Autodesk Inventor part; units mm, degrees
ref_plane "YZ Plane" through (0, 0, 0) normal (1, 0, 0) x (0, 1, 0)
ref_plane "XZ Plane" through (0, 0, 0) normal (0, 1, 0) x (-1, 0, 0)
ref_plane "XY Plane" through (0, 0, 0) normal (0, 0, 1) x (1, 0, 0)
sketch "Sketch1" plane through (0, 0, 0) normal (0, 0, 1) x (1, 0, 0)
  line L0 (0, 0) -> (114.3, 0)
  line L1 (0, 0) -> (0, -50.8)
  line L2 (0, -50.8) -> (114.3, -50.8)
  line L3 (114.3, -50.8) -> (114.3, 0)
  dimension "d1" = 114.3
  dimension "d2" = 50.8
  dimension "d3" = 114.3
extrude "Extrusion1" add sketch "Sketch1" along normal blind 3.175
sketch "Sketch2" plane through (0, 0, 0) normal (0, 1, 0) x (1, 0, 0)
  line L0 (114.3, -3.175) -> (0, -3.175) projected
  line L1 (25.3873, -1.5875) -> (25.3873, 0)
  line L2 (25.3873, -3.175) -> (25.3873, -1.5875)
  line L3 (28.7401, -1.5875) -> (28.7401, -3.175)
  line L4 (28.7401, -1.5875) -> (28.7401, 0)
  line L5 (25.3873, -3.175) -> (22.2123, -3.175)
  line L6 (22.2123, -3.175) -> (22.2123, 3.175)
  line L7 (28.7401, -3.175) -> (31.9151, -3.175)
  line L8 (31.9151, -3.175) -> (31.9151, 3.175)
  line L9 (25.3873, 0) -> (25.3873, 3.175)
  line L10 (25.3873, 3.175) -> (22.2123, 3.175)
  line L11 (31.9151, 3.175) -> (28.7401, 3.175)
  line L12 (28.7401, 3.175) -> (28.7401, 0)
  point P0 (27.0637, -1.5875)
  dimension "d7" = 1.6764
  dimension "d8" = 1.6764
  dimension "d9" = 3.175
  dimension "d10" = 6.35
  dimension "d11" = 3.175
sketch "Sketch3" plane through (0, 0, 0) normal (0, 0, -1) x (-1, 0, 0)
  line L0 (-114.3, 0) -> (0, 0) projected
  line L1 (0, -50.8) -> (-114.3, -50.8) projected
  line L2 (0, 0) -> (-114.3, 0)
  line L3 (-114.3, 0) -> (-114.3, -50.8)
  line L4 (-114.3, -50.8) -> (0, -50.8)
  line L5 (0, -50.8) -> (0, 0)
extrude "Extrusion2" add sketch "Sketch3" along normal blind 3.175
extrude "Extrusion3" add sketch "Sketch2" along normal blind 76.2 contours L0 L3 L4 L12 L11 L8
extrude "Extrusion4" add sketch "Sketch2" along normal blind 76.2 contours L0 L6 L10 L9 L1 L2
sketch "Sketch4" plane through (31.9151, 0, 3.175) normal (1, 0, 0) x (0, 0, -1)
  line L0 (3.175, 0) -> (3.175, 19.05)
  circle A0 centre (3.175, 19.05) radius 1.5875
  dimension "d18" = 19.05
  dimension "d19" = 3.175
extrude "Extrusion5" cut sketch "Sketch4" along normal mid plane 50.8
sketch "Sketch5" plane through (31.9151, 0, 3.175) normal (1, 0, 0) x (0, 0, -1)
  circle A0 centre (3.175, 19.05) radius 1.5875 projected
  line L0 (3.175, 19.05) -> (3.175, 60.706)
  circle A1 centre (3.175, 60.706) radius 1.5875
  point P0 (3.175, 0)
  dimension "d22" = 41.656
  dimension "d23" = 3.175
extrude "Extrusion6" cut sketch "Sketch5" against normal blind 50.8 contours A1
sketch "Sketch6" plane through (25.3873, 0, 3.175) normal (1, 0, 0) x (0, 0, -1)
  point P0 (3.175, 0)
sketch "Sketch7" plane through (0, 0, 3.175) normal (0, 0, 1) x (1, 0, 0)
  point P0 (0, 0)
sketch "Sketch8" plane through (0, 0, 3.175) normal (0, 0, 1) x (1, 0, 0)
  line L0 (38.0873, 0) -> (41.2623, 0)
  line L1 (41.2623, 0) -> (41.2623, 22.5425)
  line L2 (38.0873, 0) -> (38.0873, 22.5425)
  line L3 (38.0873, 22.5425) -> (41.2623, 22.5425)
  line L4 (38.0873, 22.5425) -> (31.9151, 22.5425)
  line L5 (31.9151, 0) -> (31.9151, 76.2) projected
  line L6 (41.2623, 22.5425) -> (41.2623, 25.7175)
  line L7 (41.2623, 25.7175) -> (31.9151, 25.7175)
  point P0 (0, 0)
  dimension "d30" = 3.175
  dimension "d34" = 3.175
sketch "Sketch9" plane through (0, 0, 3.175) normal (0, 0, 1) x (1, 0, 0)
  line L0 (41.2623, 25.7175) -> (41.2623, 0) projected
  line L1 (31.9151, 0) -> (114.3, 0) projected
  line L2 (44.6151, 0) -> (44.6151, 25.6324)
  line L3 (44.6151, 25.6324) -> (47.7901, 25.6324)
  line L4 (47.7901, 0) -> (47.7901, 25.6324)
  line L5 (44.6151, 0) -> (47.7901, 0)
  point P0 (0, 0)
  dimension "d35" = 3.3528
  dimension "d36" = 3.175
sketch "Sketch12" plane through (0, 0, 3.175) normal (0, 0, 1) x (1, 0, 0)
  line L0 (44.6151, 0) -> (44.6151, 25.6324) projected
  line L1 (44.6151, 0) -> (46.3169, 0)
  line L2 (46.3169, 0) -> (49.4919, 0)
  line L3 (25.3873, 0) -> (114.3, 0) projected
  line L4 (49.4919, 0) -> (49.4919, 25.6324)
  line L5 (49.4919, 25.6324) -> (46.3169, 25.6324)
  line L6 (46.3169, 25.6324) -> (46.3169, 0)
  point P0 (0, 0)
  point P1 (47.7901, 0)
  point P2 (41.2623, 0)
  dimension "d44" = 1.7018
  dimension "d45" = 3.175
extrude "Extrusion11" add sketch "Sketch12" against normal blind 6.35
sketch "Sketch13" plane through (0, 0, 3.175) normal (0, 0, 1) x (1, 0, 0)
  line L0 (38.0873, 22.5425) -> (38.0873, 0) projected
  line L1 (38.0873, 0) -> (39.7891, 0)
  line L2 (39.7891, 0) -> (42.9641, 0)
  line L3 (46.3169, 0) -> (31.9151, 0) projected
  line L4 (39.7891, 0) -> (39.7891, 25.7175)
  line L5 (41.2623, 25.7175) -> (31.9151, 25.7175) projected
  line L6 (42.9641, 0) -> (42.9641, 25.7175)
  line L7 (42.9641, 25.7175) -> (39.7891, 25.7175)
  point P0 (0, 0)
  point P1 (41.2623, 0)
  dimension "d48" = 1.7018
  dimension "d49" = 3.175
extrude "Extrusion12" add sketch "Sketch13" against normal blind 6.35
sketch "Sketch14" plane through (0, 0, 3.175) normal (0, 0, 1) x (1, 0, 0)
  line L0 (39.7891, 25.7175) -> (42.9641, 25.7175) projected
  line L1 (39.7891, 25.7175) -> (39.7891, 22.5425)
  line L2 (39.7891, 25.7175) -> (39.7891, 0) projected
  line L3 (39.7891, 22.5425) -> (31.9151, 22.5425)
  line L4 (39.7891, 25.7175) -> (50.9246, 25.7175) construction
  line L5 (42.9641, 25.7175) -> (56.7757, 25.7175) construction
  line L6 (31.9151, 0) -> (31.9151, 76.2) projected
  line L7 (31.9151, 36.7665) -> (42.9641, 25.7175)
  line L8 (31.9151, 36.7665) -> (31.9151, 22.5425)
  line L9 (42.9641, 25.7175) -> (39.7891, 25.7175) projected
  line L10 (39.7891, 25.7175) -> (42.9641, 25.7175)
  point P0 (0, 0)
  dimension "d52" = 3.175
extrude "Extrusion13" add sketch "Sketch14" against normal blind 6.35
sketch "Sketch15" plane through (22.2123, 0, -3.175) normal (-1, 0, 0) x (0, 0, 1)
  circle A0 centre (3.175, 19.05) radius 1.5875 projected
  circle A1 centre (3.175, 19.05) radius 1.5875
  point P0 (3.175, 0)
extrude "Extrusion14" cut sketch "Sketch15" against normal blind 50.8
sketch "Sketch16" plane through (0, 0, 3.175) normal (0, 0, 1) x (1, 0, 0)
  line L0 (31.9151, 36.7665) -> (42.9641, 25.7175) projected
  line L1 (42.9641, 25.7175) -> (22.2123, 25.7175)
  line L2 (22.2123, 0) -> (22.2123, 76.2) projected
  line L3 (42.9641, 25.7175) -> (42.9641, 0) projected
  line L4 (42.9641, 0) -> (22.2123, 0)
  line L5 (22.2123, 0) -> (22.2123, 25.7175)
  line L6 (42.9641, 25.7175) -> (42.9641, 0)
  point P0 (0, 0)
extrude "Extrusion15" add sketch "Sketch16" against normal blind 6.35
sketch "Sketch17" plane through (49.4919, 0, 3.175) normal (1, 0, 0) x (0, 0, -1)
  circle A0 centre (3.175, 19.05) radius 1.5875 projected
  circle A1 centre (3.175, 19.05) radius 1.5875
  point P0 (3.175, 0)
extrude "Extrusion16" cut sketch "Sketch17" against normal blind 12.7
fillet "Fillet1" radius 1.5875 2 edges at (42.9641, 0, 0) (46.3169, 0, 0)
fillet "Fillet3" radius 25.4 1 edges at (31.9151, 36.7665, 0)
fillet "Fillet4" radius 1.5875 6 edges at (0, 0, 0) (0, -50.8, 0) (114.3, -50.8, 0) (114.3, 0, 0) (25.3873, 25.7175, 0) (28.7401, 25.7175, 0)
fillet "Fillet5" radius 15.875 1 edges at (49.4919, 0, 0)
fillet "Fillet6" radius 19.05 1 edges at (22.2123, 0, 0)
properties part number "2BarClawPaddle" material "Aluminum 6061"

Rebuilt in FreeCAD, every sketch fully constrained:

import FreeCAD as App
import Part
import Sketcher

V = App.Vector
Q = App.Units.Quantity


def edges_at(feature, points):
    """Names of the edges that pass closest to the given points."""
    edges = feature.Shape.Edges
    near = lambda p: min(range(len(edges)), key=lambda i: edges[i].distToShape(Part.Vertex(*p))[0])
    return sorted({f"Edge{near(p) + 1}" for p in points})

doc = App.newDocument("Part")
body = doc.addObject("PartDesign::Body", "Body")

sketch1 = body.newObject("Sketcher::SketchObject", "Sketch")
sketch1.AttachmentSupport = (doc.getObject("XY_Plane"), [""])
sketch1.MapMode = "FlatFace"
sketch1.addGeometry(Part.LineSegment(V(114.3, 0, 0), V(0, 0, 0)), False)
sketch1.addGeometry(Part.LineSegment(V(0, 0, 0), V(0, -50.8, 0)), False)
sketch1.addGeometry(Part.LineSegment(V(0, -50.8, 0), V(114.3, -50.8, 0)), False)
sketch1.addGeometry(Part.LineSegment(V(114.3, -50.8, 0), V(114.3, 0, 0)), False)
sketch1.addConstraint(Sketcher.Constraint("Coincident", 0, 2, 1, 1))
sketch1.addConstraint(Sketcher.Constraint("Coincident", 1, 2, 2, 1))
sketch1.addConstraint(Sketcher.Constraint("Coincident", 2, 2, 3, 1))
sketch1.addConstraint(Sketcher.Constraint("Coincident", 3, 2, 0, 1))
sketch1.addConstraint(Sketcher.Constraint("Horizontal", 0))
sketch1.addConstraint(Sketcher.Constraint("Vertical", 1))
sketch1.addConstraint(Sketcher.Constraint("Horizontal", 2))
sketch1.addConstraint(Sketcher.Constraint("Vertical", 3))
sketch1.addConstraint(Sketcher.Constraint("Coincident", 0, 2, -1, 1))
sketch1.addConstraint(Sketcher.Constraint("DistanceY", 1, 2, 1, 1, Q("2 in")))
sketch1.addConstraint(Sketcher.Constraint("DistanceX", 0, 2, 0, 1, Q("4.5 in")))
pad1 = body.newObject("PartDesign::Pad", "Pad")
pad1.Profile = sketch1
pad1.Length = Q("0.125 in")

sketch2 = body.newObject("Sketcher::SketchObject", "Sketch001")
sketch2.AttachmentSupport = (doc.getObject("XY_Plane"), [""])
sketch2.MapMode = "FlatFace"
sketch2.addGeometry(Part.LineSegment(V(0, 0, 0), V(114.3, 0, 0)), False)
sketch2.addGeometry(Part.LineSegment(V(114.3, 0, 0), V(114.3, -50.8, 0)), False)
sketch2.addGeometry(Part.LineSegment(V(114.3, -50.8, 0), V(0, -50.8, 0)), False)
sketch2.addGeometry(Part.LineSegment(V(0, -50.8, 0), V(0, 0, 0)), False)
sketch2.addConstraint(Sketcher.Constraint("Coincident", 0, 2, 1, 1))
sketch2.addConstraint(Sketcher.Constraint("Coincident", 1, 2, 2, 1))
sketch2.addConstraint(Sketcher.Constraint("Coincident", 2, 2, 3, 1))
sketch2.addConstraint(Sketcher.Constraint("Coincident", 3, 2, 0, 1))
sketch2.addConstraint(Sketcher.Constraint("Horizontal", 0))
sketch2.addConstraint(Sketcher.Constraint("Vertical", 1))
sketch2.addConstraint(Sketcher.Constraint("Horizontal", 2))
sketch2.addConstraint(Sketcher.Constraint("Vertical", 3))
sketch2.addConstraint(Sketcher.Constraint("Coincident", 3, 2, -1, 1))
sketch2.addConstraint(Sketcher.Constraint("DistanceY", 1, 2, 1, 1, Q("2 in")))
sketch2.addConstraint(Sketcher.Constraint("DistanceX", 0, 1, 0, 2, Q("4.5 in")))
pad2 = body.newObject("PartDesign::Pad", "Pad001")
pad2.Profile = sketch2
pad2.Length = Q("0.125 in")
pad2.Reversed = True

sketch3 = body.newObject("Sketcher::SketchObject", "Sketch002")
sketch3.AttachmentSupport = (doc.getObject("XZ_Plane"), [""])
sketch3.MapMode = "FlatFace"
sketch3.addGeometry(Part.LineSegment(V(28.7401, 3.175, 0), V(31.9151, 3.175, 0)), False)
sketch3.addGeometry(Part.LineSegment(V(31.9151, 3.175, 0), V(31.9151, -3.175, 0)), False)
sketch3.addGeometry(Part.LineSegment(V(31.9151, -3.175, 0), V(28.7401, -3.175, 0)), False)
sketch3.addGeometry(Part.LineSegment(V(28.7401, -3.175, 0), V(28.7401, 3.175, 0)), False)
sketch3.addConstraint(Sketcher.Constraint("Coincident", 0, 2, 1, 1))
sketch3.addConstraint(Sketcher.Constraint("Coincident", 1, 2, 2, 1))
sketch3.addConstraint(Sketcher.Constraint("Coincident", 2, 2, 3, 1))
sketch3.addConstraint(Sketcher.Constraint("Coincident", 3, 2, 0, 1))
sketch3.addConstraint(Sketcher.Constraint("Horizontal", 0))
sketch3.addConstraint(Sketcher.Constraint("Vertical", 1))
sketch3.addConstraint(Sketcher.Constraint("Horizontal", 2))
sketch3.addConstraint(Sketcher.Constraint("Vertical", 3))
sketch3.addConstraint(Sketcher.Constraint("DistanceY", 1, 2, 1, 1, Q("0.25 in")))
sketch3.addConstraint(Sketcher.Constraint("DistanceX", 0, 1, 0, 2, Q("0.125 in")))
sketch3.addConstraint(Sketcher.Constraint("DistanceY", -1, 1, 0, 2, Q("0.125 in")))
sketch3.addConstraint(Sketcher.Constraint("DistanceX", -1, 1, 0, 2, Q("1.2565 in")))
pad3 = body.newObject("PartDesign::Pad", "Pad002")
pad3.Profile = sketch3
pad3.Length = Q("3 in")
pad3.Reversed = True

sketch4 = body.newObject("Sketcher::SketchObject", "Sketch003")
sketch4.AttachmentSupport = (doc.getObject("XZ_Plane"), [""])
sketch4.MapMode = "FlatFace"
sketch4.addGeometry(Part.LineSegment(V(22.2123, 3.175, 0), V(25.3873, 3.175, 0)), False)
sketch4.addGeometry(Part.LineSegment(V(25.3873, 3.175, 0), V(25.3873, -3.175, 0)), False)
sketch4.addGeometry(Part.LineSegment(V(25.3873, -3.175, 0), V(22.2123, -3.175, 0)), False)
sketch4.addGeometry(Part.LineSegment(V(22.2123, -3.175, 0), V(22.2123, 3.175, 0)), False)
sketch4.addConstraint(Sketcher.Constraint("Coincident", 0, 2, 1, 1))
sketch4.addConstraint(Sketcher.Constraint("Coincident", 1, 2, 2, 1))
sketch4.addConstraint(Sketcher.Constraint("Coincident", 2, 2, 3, 1))
sketch4.addConstraint(Sketcher.Constraint("Coincident", 3, 2, 0, 1))
sketch4.addConstraint(Sketcher.Constraint("Horizontal", 0))
sketch4.addConstraint(Sketcher.Constraint("Vertical", 1))
sketch4.addConstraint(Sketcher.Constraint("Horizontal", 2))
sketch4.addConstraint(Sketcher.Constraint("Vertical", 3))
sketch4.addConstraint(Sketcher.Constraint("DistanceY", 1, 2, 1, 1, Q("0.25 in")))
sketch4.addConstraint(Sketcher.Constraint("DistanceX", 0, 1, 0, 2, Q("0.125 in")))
sketch4.addConstraint(Sketcher.Constraint("DistanceY", -1, 1, 0, 2, Q("0.125 in")))
sketch4.addConstraint(Sketcher.Constraint("DistanceX", -1, 1, 0, 2, Q("0.9995 in")))
pad4 = body.newObject("PartDesign::Pad", "Pad003")
pad4.Profile = sketch4
pad4.Length = Q("3 in")
pad4.Reversed = True

sketch5 = body.newObject("Sketcher::SketchObject", "Sketch004")
sketch5.AttachmentSupport = (doc.getObject("YZ_Plane"), [""])
sketch5.MapMode = "FlatFace"
sketch5.AttachmentOffset = App.Placement(V(0, 0, 1.2565 * 25.4), App.Rotation())
sketch5.addGeometry(Part.Circle(V(19.05, 0, 0), V(0, 0, 1), 1.5875), False)
sketch5.addConstraint(Sketcher.Constraint("PointOnObject", 0, 3, -1))
sketch5.addConstraint(Sketcher.Constraint("Diameter", 0, Q("0.125 in")))
sketch5.addConstraint(Sketcher.Constraint("DistanceX", -1, 1, 0, 3, Q("0.75 in")))
pocket1 = body.newObject("PartDesign::Pocket", "Pocket")
pocket1.Profile = sketch5
pocket1.Length = Q("2 in")
pocket1.Midplane = True

sketch6 = body.newObject("Sketcher::SketchObject", "Sketch005")
sketch6.AttachmentSupport = (doc.getObject("YZ_Plane"), [""])
sketch6.MapMode = "FlatFace"
sketch6.AttachmentOffset = App.Placement(V(0, 0, 1.2565 * 25.4), App.Rotation())
sketch6.addGeometry(Part.Circle(V(60.706, 0, 0), V(0, 0, 1), 1.5875), False)
sketch6.addConstraint(Sketcher.Constraint("PointOnObject", 0, 3, -1))
sketch6.addConstraint(Sketcher.Constraint("Diameter", 0, Q("0.125 in")))
sketch6.addConstraint(Sketcher.Constraint("DistanceX", -1, 1, 0, 3, Q("2.39 in")))
pocket2 = body.newObject("PartDesign::Pocket", "Pocket001")
pocket2.Profile = sketch6
pocket2.Length = Q("2 in")

sketch7 = body.newObject("Sketcher::SketchObject", "Sketch006")
sketch7.AttachmentSupport = (doc.getObject("XY_Plane"), [""])
sketch7.MapMode = "FlatFace"
sketch7.AttachmentOffset = App.Placement(V(0, 0, 0.125 * 25.4), App.Rotation())
sketch7.addGeometry(Part.LineSegment(V(46.3169, 25.6324, 0), V(46.3169, 0, 0)), False)
sketch7.addGeometry(Part.LineSegment(V(46.3169, 0, 0), V(49.4919, 0, 0)), False)
sketch7.addGeometry(Part.LineSegment(V(49.4919, 0, 0), V(49.4919, 25.6324, 0)), False)
sketch7.addGeometry(Part.LineSegment(V(49.4919, 25.6324, 0), V(46.3169, 25.6324, 0)), False)
sketch7.addConstraint(Sketcher.Constraint("Coincident", 0, 2, 1, 1))
sketch7.addConstraint(Sketcher.Constraint("Coincident", 1, 2, 2, 1))
sketch7.addConstraint(Sketcher.Constraint("Coincident", 2, 2, 3, 1))
sketch7.addConstraint(Sketcher.Constraint("Coincident", 3, 2, 0, 1))
sketch7.addConstraint(Sketcher.Constraint("Vertical", 0))
sketch7.addConstraint(Sketcher.Constraint("Horizontal", 1))
sketch7.addConstraint(Sketcher.Constraint("Vertical", 2))
sketch7.addConstraint(Sketcher.Constraint("Horizontal", 3))
sketch7.addConstraint(Sketcher.Constraint("PointOnObject", 0, 2, -1))
sketch7.addConstraint(Sketcher.Constraint("DistanceX", 1, 1, 1, 2, Q("0.125 in")))
sketch7.addConstraint(Sketcher.Constraint("DistanceY", 0, 2, 0, 1, 25.6324))
sketch7.addConstraint(Sketcher.Constraint("DistanceX", -1, 1, 0, 2, Q("1.8235 in")))
pad5 = body.newObject("PartDesign::Pad", "Pad004")
pad5.Profile = sketch7
pad5.Length = Q("0.25 in")
pad5.Reversed = True

sketch8 = body.newObject("Sketcher::SketchObject", "Sketch007")
sketch8.AttachmentSupport = (doc.getObject("XY_Plane"), [""])
sketch8.MapMode = "FlatFace"
sketch8.AttachmentOffset = App.Placement(V(0, 0, 0.125 * 25.4), App.Rotation())
sketch8.addGeometry(Part.LineSegment(V(39.7891, 25.7175, 0), V(39.7891, 0, 0)), False)
sketch8.addGeometry(Part.LineSegment(V(39.7891, 0, 0), V(42.9641, 0, 0)), False)
sketch8.addGeometry(Part.LineSegment(V(42.9641, 0, 0), V(42.9641, 25.7175, 0)), False)
sketch8.addGeometry(Part.LineSegment(V(42.9641, 25.7175, 0), V(39.7891, 25.7175, 0)), False)
sketch8.addConstraint(Sketcher.Constraint("Coincident", 0, 2, 1, 1))
sketch8.addConstraint(Sketcher.Constraint("Coincident", 1, 2, 2, 1))
sketch8.addConstraint(Sketcher.Constraint("Coincident", 2, 2, 3, 1))
sketch8.addConstraint(Sketcher.Constraint("Coincident", 3, 2, 0, 1))
sketch8.addConstraint(Sketcher.Constraint("Vertical", 0))
sketch8.addConstraint(Sketcher.Constraint("Horizontal", 1))
sketch8.addConstraint(Sketcher.Constraint("Vertical", 2))
sketch8.addConstraint(Sketcher.Constraint("Horizontal", 3))
sketch8.addConstraint(Sketcher.Constraint("PointOnObject", 0, 2, -1))
sketch8.addConstraint(Sketcher.Constraint("DistanceX", 1, 1, 1, 2, Q("0.125 in")))
sketch8.addConstraint(Sketcher.Constraint("DistanceY", 0, 2, 0, 1, Q("1.0125 in")))
sketch8.addConstraint(Sketcher.Constraint("DistanceX", -1, 1, 0, 2, Q("1.5665 in")))
pad6 = body.newObject("PartDesign::Pad", "Pad005")
pad6.Profile = sketch8
pad6.Length = Q("0.25 in")
pad6.Reversed = True

sketch9 = body.newObject("Sketcher::SketchObject", "Sketch008")
sketch9.AttachmentSupport = (doc.getObject("XY_Plane"), [""])
sketch9.MapMode = "FlatFace"
sketch9.AttachmentOffset = App.Placement(V(0, 0, 0.125 * 25.4), App.Rotation())
sketch9.addGeometry(Part.LineSegment(V(39.7891, 22.5425, 0), V(39.7891, 25.7175, 0)), False)
sketch9.addGeometry(Part.LineSegment(V(39.7891, 25.7175, 0), V(42.9641, 25.7175, 0)), False)
sketch9.addGeometry(Part.LineSegment(V(42.9641, 25.7175, 0), V(31.9151, 36.7665, 0)), False)
sketch9.addGeometry(Part.LineSegment(V(31.9151, 36.7665, 0), V(31.9151, 22.5425, 0)), False)
sketch9.addGeometry(Part.LineSegment(V(31.9151, 22.5425, 0), V(39.7891, 22.5425, 0)), False)
sketch9.addConstraint(Sketcher.Constraint("Coincident", 0, 2, 1, 1))
sketch9.addConstraint(Sketcher.Constraint("Coincident", 1, 2, 2, 1))
sketch9.addConstraint(Sketcher.Constraint("Coincident", 2, 2, 3, 1))
sketch9.addConstraint(Sketcher.Constraint("Coincident", 3, 2, 4, 1))
sketch9.addConstraint(Sketcher.Constraint("Coincident", 4, 2, 0, 1))
sketch9.addConstraint(Sketcher.Constraint("Vertical", 0))
sketch9.addConstraint(Sketcher.Constraint("Horizontal", 1))
sketch9.addConstraint(Sketcher.Constraint("Vertical", 3))
sketch9.addConstraint(Sketcher.Constraint("Horizontal", 4))
sketch9.addConstraint(Sketcher.Constraint("Equal", 1, 0))
sketch9.addConstraint(Sketcher.Constraint("DistanceX", 1, 1, 1, 2, Q("0.125 in")))
sketch9.addConstraint(Sketcher.Constraint("Angle", 2, Q("135 deg")))
sketch9.addConstraint(Sketcher.Constraint("DistanceX", 4, 1, 4, 2, Q("0.31 in")))
sketch9.addConstraint(Sketcher.Constraint("DistanceX", -1, 1, 0, 2, Q("1.5665 in")))
sketch9.addConstraint(Sketcher.Constraint("DistanceY", -1, 1, 0, 2, Q("1.0125 in")))
pad7 = body.newObject("PartDesign::Pad", "Pad006")
pad7.Profile = sketch9
pad7.Length = Q("0.25 in")
pad7.Reversed = True

sketch10 = body.newObject("Sketcher::SketchObject", "Sketch009")
sketch10.AttachmentSupport = (doc.getObject("YZ_Plane"), [""])
sketch10.MapMode = "FlatFace"
sketch10.AttachmentOffset = App.Placement(V(0, 0, 0.8745 * 25.4), App.Rotation())
sketch10.addGeometry(Part.Circle(V(19.05, 0, 0), V(0, 0, 1), 1.5875), False)
sketch10.addConstraint(Sketcher.Constraint("PointOnObject", 0, 3, -1))
sketch10.addConstraint(Sketcher.Constraint("Diameter", 0, Q("0.125 in")))
sketch10.addConstraint(Sketcher.Constraint("DistanceX", -1, 1, 0, 3, Q("0.75 in")))
pocket3 = body.newObject("PartDesign::Pocket", "Pocket002")
pocket3.Profile = sketch10
pocket3.Length = Q("2 in")
pocket3.Reversed = True

sketch11 = body.newObject("Sketcher::SketchObject", "Sketch010")
sketch11.AttachmentSupport = (doc.getObject("XY_Plane"), [""])
sketch11.MapMode = "FlatFace"
sketch11.AttachmentOffset = App.Placement(V(0, 0, 0.125 * 25.4), App.Rotation())
sketch11.addGeometry(Part.LineSegment(V(42.9641, 0, 0), V(42.9641, 25.7175, 0)), False)
sketch11.addGeometry(Part.LineSegment(V(42.9641, 25.7175, 0), V(22.2123, 25.7175, 0)), False)
sketch11.addGeometry(Part.LineSegment(V(22.2123, 25.7175, 0), V(22.2123, 0, 0)), False)
sketch11.addGeometry(Part.LineSegment(V(22.2123, 0, 0), V(42.9641, 0, 0)), False)
sketch11.addConstraint(Sketcher.Constraint("Coincident", 0, 2, 1, 1))
sketch11.addConstraint(Sketcher.Constraint("Coincident", 1, 2, 2, 1))
sketch11.addConstraint(Sketcher.Constraint("Coincident", 2, 2, 3, 1))
sketch11.addConstraint(Sketcher.Constraint("Coincident", 3, 2, 0, 1))
sketch11.addConstraint(Sketcher.Constraint("Vertical", 0))
sketch11.addConstraint(Sketcher.Constraint("Horizontal", 1))
sketch11.addConstraint(Sketcher.Constraint("Vertical", 2))
sketch11.addConstraint(Sketcher.Constraint("Horizontal", 3))
sketch11.addConstraint(Sketcher.Constraint("PointOnObject", 2, 2, -1))
sketch11.addConstraint(Sketcher.Constraint("DistanceX", 1, 2, 1, 1, Q("0.817 in")))
sketch11.addConstraint(Sketcher.Constraint("DistanceY", 0, 1, 0, 2, Q("1.0125 in")))
sketch11.addConstraint(Sketcher.Constraint("DistanceX", -1, 1, 0, 2, Q("1.6915 in")))
pad8 = body.newObject("PartDesign::Pad", "Pad007")
pad8.Profile = sketch11
pad8.Length = Q("0.25 in")
pad8.Reversed = True

sketch12 = body.newObject("Sketcher::SketchObject", "Sketch011")
sketch12.AttachmentSupport = (doc.getObject("YZ_Plane"), [""])
sketch12.MapMode = "FlatFace"
sketch12.AttachmentOffset = App.Placement(V(0, 0, 1.9485 * 25.4), App.Rotation())
sketch12.addGeometry(Part.Circle(V(19.05, 0, 0), V(0, 0, 1), 1.5875), False)
sketch12.addConstraint(Sketcher.Constraint("PointOnObject", 0, 3, -1))
sketch12.addConstraint(Sketcher.Constraint("Diameter", 0, Q("0.125 in")))
sketch12.addConstraint(Sketcher.Constraint("DistanceX", -1, 1, 0, 3, Q("0.75 in")))
pocket4 = body.newObject("PartDesign::Pocket", "Pocket003")
pocket4.Profile = sketch12
pocket4.Length = Q("0.5 in")
doc.recompute()

fillet = body.newObject("PartDesign::Fillet", "Fillet")
fillet.Base = (pocket4, edges_at(pocket4, [(42.964, 0, 0), (46.317, 0, 0)]))
fillet.Radius = Q("0.0625 in")
doc.recompute()

fillet2 = body.newObject("PartDesign::Fillet", "Fillet001")
fillet2.Base = (fillet, edges_at(fillet, [(31.915, 36.767, 0)]))
fillet2.Radius = Q("1 in")
doc.recompute()

fillet3 = body.newObject("PartDesign::Fillet", "Fillet002")
fillet3.Base = (fillet2, edges_at(fillet2, [
    (0, 0, 0),
    (0, -50.8, 0),
    (114.3, -50.8, 0),
    (114.3, 0, 0),
    (25.387, 25.718, 0),
    (28.74, 25.718, 0),
]))
fillet3.Radius = Q("0.0625 in")
doc.recompute()

fillet4 = body.newObject("PartDesign::Fillet", "Fillet003")
fillet4.Base = (fillet3, edges_at(fillet3, [(49.492, 0, 0)]))
fillet4.Radius = Q("0.625 in")
doc.recompute()

fillet5 = body.newObject("PartDesign::Fillet", "Fillet004")
fillet5.Base = (fillet4, edges_at(fillet4, [(22.212, 0, 0)]))
fillet5.Radius = Q("0.75 in")

doc.recompute()
